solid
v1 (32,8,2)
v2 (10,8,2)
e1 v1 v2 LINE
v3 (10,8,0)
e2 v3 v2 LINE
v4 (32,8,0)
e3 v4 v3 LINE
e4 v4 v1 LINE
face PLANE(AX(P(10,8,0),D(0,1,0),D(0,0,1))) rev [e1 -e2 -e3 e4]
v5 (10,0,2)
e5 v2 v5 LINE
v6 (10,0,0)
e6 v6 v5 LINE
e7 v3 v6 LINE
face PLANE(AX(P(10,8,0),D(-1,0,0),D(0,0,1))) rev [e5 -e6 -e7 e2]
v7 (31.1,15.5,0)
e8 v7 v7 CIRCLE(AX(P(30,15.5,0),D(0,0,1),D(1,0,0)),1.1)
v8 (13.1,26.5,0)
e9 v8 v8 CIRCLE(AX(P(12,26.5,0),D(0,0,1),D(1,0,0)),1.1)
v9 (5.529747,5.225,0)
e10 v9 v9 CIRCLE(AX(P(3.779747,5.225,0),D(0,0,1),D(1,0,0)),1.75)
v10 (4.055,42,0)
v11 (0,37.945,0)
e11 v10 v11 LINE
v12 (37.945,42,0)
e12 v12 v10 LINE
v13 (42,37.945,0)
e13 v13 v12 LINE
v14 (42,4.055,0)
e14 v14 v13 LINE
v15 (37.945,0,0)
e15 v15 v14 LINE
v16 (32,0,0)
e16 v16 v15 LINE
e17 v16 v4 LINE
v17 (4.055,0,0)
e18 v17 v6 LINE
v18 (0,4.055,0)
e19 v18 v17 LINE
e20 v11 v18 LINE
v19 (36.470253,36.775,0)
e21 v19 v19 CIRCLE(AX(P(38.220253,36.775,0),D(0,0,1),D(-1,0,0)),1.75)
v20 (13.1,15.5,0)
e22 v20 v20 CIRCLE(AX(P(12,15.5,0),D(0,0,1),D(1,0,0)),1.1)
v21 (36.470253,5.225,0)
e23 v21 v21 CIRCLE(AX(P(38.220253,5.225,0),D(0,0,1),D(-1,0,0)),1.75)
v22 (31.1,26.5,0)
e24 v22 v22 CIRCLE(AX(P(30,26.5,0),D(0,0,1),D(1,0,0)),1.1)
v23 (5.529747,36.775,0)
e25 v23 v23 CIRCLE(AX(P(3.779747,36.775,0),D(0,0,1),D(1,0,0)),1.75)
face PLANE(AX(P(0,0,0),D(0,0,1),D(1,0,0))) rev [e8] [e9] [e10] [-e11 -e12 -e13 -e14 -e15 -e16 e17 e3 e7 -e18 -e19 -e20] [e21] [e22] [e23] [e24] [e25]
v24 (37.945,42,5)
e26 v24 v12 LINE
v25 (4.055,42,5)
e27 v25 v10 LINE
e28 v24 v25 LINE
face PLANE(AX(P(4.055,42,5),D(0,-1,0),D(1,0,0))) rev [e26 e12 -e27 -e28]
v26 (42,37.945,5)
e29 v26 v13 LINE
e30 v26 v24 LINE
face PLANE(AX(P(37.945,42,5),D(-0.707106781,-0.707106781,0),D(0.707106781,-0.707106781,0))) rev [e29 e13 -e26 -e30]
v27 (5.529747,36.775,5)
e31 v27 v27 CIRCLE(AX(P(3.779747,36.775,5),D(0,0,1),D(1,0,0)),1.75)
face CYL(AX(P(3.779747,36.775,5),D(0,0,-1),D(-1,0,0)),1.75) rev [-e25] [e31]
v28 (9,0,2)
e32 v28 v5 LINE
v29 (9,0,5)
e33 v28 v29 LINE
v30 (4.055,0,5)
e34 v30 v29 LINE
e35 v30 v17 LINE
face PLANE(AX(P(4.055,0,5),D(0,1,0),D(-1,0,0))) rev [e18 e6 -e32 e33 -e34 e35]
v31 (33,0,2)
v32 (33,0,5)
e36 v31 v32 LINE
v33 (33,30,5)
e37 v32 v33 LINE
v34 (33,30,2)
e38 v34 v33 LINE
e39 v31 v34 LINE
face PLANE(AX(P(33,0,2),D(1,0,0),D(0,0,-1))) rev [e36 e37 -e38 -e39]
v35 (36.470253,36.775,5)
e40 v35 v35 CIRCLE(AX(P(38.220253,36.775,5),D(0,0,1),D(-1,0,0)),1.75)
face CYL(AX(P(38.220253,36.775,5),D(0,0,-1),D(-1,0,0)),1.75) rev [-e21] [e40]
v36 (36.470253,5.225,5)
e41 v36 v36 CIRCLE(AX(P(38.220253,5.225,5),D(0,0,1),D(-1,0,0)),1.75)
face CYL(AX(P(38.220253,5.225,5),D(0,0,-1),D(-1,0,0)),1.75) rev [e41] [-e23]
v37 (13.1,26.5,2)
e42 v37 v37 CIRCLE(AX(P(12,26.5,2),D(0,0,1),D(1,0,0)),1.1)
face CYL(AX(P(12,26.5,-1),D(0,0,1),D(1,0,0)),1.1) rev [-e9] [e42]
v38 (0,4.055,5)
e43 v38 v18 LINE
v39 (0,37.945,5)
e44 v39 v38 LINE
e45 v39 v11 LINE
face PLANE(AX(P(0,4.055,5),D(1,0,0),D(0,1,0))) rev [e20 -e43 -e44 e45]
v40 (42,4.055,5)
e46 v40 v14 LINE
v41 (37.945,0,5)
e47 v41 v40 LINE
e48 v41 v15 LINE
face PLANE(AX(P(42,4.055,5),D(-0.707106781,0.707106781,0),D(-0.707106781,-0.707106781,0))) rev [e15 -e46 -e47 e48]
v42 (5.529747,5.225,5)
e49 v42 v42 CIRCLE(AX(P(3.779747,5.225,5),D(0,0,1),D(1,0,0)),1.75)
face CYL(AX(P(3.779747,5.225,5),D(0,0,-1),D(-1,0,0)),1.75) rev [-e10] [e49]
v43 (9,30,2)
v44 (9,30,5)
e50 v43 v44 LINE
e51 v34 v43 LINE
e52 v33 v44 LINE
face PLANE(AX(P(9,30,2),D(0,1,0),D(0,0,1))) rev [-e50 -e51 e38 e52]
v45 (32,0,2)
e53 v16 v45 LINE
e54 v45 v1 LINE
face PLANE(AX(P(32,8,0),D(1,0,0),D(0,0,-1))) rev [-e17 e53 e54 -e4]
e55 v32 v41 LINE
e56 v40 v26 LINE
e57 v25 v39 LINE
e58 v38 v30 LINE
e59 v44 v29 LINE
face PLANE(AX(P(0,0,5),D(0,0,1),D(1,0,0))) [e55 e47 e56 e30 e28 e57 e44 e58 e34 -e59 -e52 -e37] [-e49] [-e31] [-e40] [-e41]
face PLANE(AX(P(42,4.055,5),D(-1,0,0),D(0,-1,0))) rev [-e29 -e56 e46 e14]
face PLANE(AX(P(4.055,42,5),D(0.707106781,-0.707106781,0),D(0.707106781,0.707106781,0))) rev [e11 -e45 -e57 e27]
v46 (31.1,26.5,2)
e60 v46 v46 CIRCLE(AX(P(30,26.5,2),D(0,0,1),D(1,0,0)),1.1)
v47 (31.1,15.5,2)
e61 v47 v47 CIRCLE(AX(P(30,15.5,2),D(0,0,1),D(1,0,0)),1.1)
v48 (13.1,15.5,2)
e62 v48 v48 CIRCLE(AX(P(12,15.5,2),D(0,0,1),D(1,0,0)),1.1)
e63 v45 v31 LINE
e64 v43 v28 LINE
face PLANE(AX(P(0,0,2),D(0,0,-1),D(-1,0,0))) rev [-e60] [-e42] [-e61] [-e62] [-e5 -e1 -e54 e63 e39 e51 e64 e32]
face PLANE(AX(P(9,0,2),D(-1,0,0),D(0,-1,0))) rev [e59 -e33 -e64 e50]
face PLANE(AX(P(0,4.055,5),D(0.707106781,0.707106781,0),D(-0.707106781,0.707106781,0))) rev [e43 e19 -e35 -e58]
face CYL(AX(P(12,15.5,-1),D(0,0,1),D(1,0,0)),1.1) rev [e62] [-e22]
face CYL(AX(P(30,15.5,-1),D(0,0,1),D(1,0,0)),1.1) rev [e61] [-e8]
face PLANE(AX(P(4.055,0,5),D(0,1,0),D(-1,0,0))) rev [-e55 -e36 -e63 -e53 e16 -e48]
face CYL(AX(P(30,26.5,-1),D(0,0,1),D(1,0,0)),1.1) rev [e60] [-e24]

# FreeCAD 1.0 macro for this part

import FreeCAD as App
import Part
import Sketcher

V = App.Vector

doc = App.newDocument("Part")
body = doc.addObject("PartDesign::Body", "Body")

# Sketch on XY plane
sketch1 = doc.addObject("Sketcher::SketchObject", "Sketch")
body.addObject(sketch1)
sketch1.AttachmentSupport = (doc.XY_Plane, [""])
sketch1.MapMode = "FlatFace"
sketch1.addGeometry(Part.LineSegment(V(4.1, 42, 0), V(0, 37.9, 0)), False)
sketch1.addGeometry(Part.LineSegment(V(0, 37.9, 0), V(0, 4.1, 0)), False)
sketch1.addGeometry(Part.LineSegment(V(0, 4.1, 0), V(4.1, 0, 0)), False)
sketch1.addGeometry(Part.LineSegment(V(4.1, 0, 0), V(37.9, 0, 0)), False)
sketch1.addGeometry(Part.LineSegment(V(37.9, 0, 0), V(42, 4.1, 0)), False)
sketch1.addGeometry(Part.LineSegment(V(42, 4.1, 0), V(42, 37.9, 0)), False)
sketch1.addGeometry(Part.LineSegment(V(42, 37.9, 0), V(37.9, 42, 0)), False)
sketch1.addGeometry(Part.LineSegment(V(37.9, 42, 0), V(4.1, 42, 0)), False)
sketch1.addGeometry(Part.Circle(V(3.8, 5.2, 0), V(0, 0, 1), 1.8), False)
sketch1.addGeometry(Part.Circle(V(38.2, 5.2, 0), V(0, 0, 1), 1.8), False)
sketch1.addGeometry(Part.Circle(V(3.8, 36.8, 0), V(0, 0, 1), 1.8), False)
sketch1.addGeometry(Part.Circle(V(38.2, 36.8, 0), V(0, 0, 1), 1.8), False)
sketch1.addConstraint(Sketcher.Constraint("Coincident", 0, 2, 1, 1))
sketch1.addConstraint(Sketcher.Constraint("Coincident", 1, 2, 2, 1))
sketch1.addConstraint(Sketcher.Constraint("Coincident", 2, 2, 3, 1))
sketch1.addConstraint(Sketcher.Constraint("Coincident", 3, 2, 4, 1))
sketch1.addConstraint(Sketcher.Constraint("Coincident", 4, 2, 5, 1))
sketch1.addConstraint(Sketcher.Constraint("Coincident", 5, 2, 6, 1))
sketch1.addConstraint(Sketcher.Constraint("Coincident", 6, 2, 7, 1))
sketch1.addConstraint(Sketcher.Constraint("Coincident", 7, 2, 0, 1))
sketch1.addConstraint(Sketcher.Constraint("Vertical", 1))
sketch1.addConstraint(Sketcher.Constraint("Horizontal", 3))
sketch1.addConstraint(Sketcher.Constraint("Vertical", 5))
sketch1.addConstraint(Sketcher.Constraint("Horizontal", 7))
sketch1.addConstraint(Sketcher.Constraint("Equal", 8, 9))
sketch1.addConstraint(Sketcher.Constraint("Equal", 9, 10))
sketch1.addConstraint(Sketcher.Constraint("Equal", 10, 11))
sketch1.addConstraint(Sketcher.Constraint("PointOnObject", 0, 2, -2))
sketch1.addConstraint(Sketcher.Constraint("PointOnObject", 2, 2, -1))
sketch1.addConstraint(Sketcher.Constraint("Perpendicular", 0, 2))
sketch1.addConstraint(Sketcher.Constraint("Perpendicular", 2, 4))
sketch1.addConstraint(Sketcher.Constraint("Perpendicular", 4, 6))
sketch1.addConstraint(Sketcher.Constraint("Horizontal", 8, 3, 9, 3))
sketch1.addConstraint(Sketcher.Constraint("Horizontal", 10, 3, 11, 3))
sketch1.addConstraint(Sketcher.Constraint("Horizontal", 1, 2, 4, 2))
sketch1.addConstraint(Sketcher.Constraint("Horizontal", 0, 2, 5, 2))
sketch1.addConstraint(Sketcher.Constraint("Vertical", 8, 3, 10, 3))
sketch1.addConstraint(Sketcher.Constraint("Vertical", 9, 3, 11, 3))
sketch1.addConstraint(Sketcher.Constraint("Vertical", 3, 2, 6, 2))
sketch1.addConstraint(Sketcher.Constraint("Vertical", 2, 2, 7, 2))
sketch1.addConstraint(Sketcher.Constraint("Equal", 7, 1))
sketch1.addConstraint(Sketcher.Constraint("Diameter", 8, 3.5))
sketch1.addConstraint(Sketcher.Constraint("DistanceX", -1, 1, 4, 2, 42.0))
sketch1.addConstraint(Sketcher.Constraint("DistanceX", 3, 1, 3, 2, 33.89))
sketch1.addConstraint(Sketcher.Constraint("DistanceY", 8, 3, 10, 3, 31.55))
sketch1.addConstraint(Sketcher.Constraint("DistanceY", 10, 3, 0, 2, 1.17))
sketch1.addConstraint(Sketcher.Constraint("DistanceX", -1, 1, 8, 3, 3.779747))
sketch1.addConstraint(Sketcher.Constraint("DistanceX", -1, 1, 9, 3, 38.220253))
pad1 = doc.addObject("PartDesign::Pad", "Pad")
body.addObject(pad1)
pad1.Profile = sketch1
pad1.Length = 5

# Sketch on XY plane
sketch2 = doc.addObject("Sketcher::SketchObject", "Sketch001")
body.addObject(sketch2)
sketch2.AttachmentSupport = (doc.XY_Plane, [""])
sketch2.MapMode = "FlatFace"
sketch2.AttachmentOffset = App.Placement(V(0, 0, 5), App.Rotation())
sketch2.addGeometry(Part.LineSegment(V(10, 8, 0), V(10, 0, 0)), False)
sketch2.addGeometry(Part.LineSegment(V(10, 0, 0), V(32, 0, 0)), False)
sketch2.addGeometry(Part.LineSegment(V(32, 0, 0), V(32, 8, 0)), False)
sketch2.addGeometry(Part.LineSegment(V(32, 8, 0), V(10, 8, 0)), False)
sketch2.addConstraint(Sketcher.Constraint("Coincident", 0, 2, 1, 1))
sketch2.addConstraint(Sketcher.Constraint("Coincident", 1, 2, 2, 1))
sketch2.addConstraint(Sketcher.Constraint("Coincident", 2, 2, 3, 1))
sketch2.addConstraint(Sketcher.Constraint("Coincident", 3, 2, 0, 1))
sketch2.addConstraint(Sketcher.Constraint("Vertical", 0))
sketch2.addConstraint(Sketcher.Constraint("Horizontal", 1))
sketch2.addConstraint(Sketcher.Constraint("Vertical", 2))
sketch2.addConstraint(Sketcher.Constraint("Horizontal", 3))
sketch2.addConstraint(Sketcher.Constraint("PointOnObject", 0, 2, -1))
sketch2.addConstraint(Sketcher.Constraint("DistanceX", 1, 1, 1, 2, 22.0))
sketch2.addConstraint(Sketcher.Constraint("DistanceY", 0, 2, 0, 1, 8.0))
sketch2.addConstraint(Sketcher.Constraint("DistanceX", -1, 1, 0, 2, 10.0))
pocket1 = doc.addObject("PartDesign::Pocket", "Pocket")
body.addObject(pocket1)
pocket1.Profile = sketch2
pocket1.Type = "ThroughAll"
pocket1.Midplane = True

# Sketch on XY plane
sketch3 = doc.addObject("Sketcher::SketchObject", "Sketch002")
body.addObject(sketch3)
sketch3.AttachmentSupport = (doc.XY_Plane, [""])
sketch3.MapMode = "FlatFace"
sketch3.AttachmentOffset = App.Placement(V(0, 0, 5), App.Rotation())
sketch3.addGeometry(Part.LineSegment(V(9, 30, 0), V(9, 0, 0)), False)
sketch3.addGeometry(Part.LineSegment(V(9, 0, 0), V(33, 0, 0)), False)
sketch3.addGeometry(Part.LineSegment(V(33, 0, 0), V(33, 30, 0)), False)
sketch3.addGeometry(Part.LineSegment(V(33, 30, 0), V(9, 30, 0)), False)
sketch3.addConstraint(Sketcher.Constraint("Coincident", 0, 2, 1, 1))
sketch3.addConstraint(Sketcher.Constraint("Coincident", 1, 2, 2, 1))
sketch3.addConstraint(Sketcher.Constraint("Coincident", 2, 2, 3, 1))
sketch3.addConstraint(Sketcher.Constraint("Coincident", 3, 2, 0, 1))
sketch3.addConstraint(Sketcher.Constraint("Vertical", 0))
sketch3.addConstraint(Sketcher.Constraint("Horizontal", 1))
sketch3.addConstraint(Sketcher.Constraint("Vertical", 2))
sketch3.addConstraint(Sketcher.Constraint("Horizontal", 3))
sketch3.addConstraint(Sketcher.Constraint("PointOnObject", 0, 2, -1))
sketch3.addConstraint(Sketcher.Constraint("DistanceX", 1, 1, 1, 2, 24.0))
sketch3.addConstraint(Sketcher.Constraint("DistanceY", 0, 2, 0, 1, 30.0))
sketch3.addConstraint(Sketcher.Constraint("DistanceX", -1, 1, 0, 2, 9.0))
pocket2 = doc.addObject("PartDesign::Pocket", "Pocket001")
body.addObject(pocket2)
pocket2.Profile = sketch3
pocket2.Length = 3

# Sketch on XY plane
sketch4 = doc.addObject("Sketcher::SketchObject", "Sketch003")
body.addObject(sketch4)
sketch4.AttachmentSupport = (doc.XY_Plane, [""])
sketch4.MapMode = "FlatFace"
sketch4.AttachmentOffset = App.Placement(V(0, 0, 2), App.Rotation())
sketch4.addGeometry(Part.Circle(V(12, 26.5, 0), V(0, 0, 1), 1.1), False)
sketch4.addGeometry(Part.Circle(V(30, 26.5, 0), V(0, 0, 1), 1.1), False)
sketch4.addGeometry(Part.Circle(V(12, 15.5, 0), V(0, 0, 1), 1.1), False)
sketch4.addGeometry(Part.Circle(V(30, 15.5, 0), V(0, 0, 1), 1.1), False)
sketch4.addConstraint(Sketcher.Constraint("Equal", 0, 1))
sketch4.addConstraint(Sketcher.Constraint("Equal", 1, 2))
sketch4.addConstraint(Sketcher.Constraint("Equal", 2, 3))
sketch4.addConstraint(Sketcher.Constraint("Horizontal", 0, 3, 1, 3))
sketch4.addConstraint(Sketcher.Constraint("Horizontal", 2, 3, 3, 3))
sketch4.addConstraint(Sketcher.Constraint("Vertical", 0, 3, 2, 3))
sketch4.addConstraint(Sketcher.Constraint("Vertical", 1, 3, 3, 3))
sketch4.addConstraint(Sketcher.Constraint("Diameter", 0, 2.2))
sketch4.addConstraint(Sketcher.Constraint("DistanceX", -1, 1, 0, 3, 12.0))
sketch4.addConstraint(Sketcher.Constraint("DistanceX", -1, 1, 1, 3, 30.0))
sketch4.addConstraint(Sketcher.Constraint("DistanceY", 2, 3, 0, 3, 11.0))
sketch4.addConstraint(Sketcher.Constraint("DistanceY", -1, 1, 0, 3, 26.5))
pocket3 = doc.addObject("PartDesign::Pocket", "Pocket002")
body.addObject(pocket3)
pocket3.Profile = sketch4
pocket3.Length = 3

doc.recompute()
